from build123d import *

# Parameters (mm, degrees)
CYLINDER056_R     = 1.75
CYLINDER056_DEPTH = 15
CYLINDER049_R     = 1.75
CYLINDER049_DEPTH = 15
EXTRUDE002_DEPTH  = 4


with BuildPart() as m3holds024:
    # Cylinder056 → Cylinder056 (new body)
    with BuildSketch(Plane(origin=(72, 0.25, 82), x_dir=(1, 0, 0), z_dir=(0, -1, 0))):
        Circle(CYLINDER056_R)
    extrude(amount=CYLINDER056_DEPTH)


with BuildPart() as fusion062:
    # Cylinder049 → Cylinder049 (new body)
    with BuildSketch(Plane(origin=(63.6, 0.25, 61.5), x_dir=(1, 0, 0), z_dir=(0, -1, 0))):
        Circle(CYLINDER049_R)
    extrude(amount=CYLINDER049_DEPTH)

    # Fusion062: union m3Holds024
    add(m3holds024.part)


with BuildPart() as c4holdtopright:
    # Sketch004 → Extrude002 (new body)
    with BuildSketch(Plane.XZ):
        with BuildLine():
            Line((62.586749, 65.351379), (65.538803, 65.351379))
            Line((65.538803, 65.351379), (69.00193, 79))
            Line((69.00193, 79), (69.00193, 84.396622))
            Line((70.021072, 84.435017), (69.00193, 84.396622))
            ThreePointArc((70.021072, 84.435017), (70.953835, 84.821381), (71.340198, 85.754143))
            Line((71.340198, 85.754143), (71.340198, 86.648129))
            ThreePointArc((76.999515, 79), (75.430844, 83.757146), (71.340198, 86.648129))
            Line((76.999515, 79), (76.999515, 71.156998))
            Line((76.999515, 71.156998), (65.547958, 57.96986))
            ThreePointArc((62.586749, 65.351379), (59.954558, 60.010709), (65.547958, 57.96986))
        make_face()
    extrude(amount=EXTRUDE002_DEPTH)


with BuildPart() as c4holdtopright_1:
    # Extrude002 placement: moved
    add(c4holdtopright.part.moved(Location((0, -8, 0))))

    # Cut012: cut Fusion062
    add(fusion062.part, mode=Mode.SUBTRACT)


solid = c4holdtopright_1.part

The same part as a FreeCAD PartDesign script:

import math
import FreeCAD as App
import Part
import Sketcher
Q = App.Units.Quantity

doc = App.newDocument("Part")
body = doc.addObject("PartDesign::Body", "Body")

sketch1 = doc.addObject("Sketcher::SketchObject", "Sketch")
body.addObject(sketch1)
sketch1.AttachmentSupport = (doc.XZ_Plane, [""])
sketch1.MapMode = "FlatFace"
sketch1.AttachmentOffset = App.Placement(App.Vector(0, 0, -0.25), App.Rotation())
sketch1.addGeometry(Part.Circle(App.Vector(72, 82, 0), App.Vector(0, 0, 1), 1.75), False)
sketch1.addConstraint(Sketcher.Constraint("Diameter", 0, Q("3.5 mm")))
sketch1.addConstraint(Sketcher.Constraint("DistanceX", -1, 1, 0, 3, Q("72 mm")))
sketch1.addConstraint(Sketcher.Constraint("DistanceY", -1, 1, 0, 3, Q("82 mm")))
pad1 = doc.addObject("PartDesign::Pad", "Pad")
body.addObject(pad1)
pad1.Profile = sketch1
pad1.Length = 15
body2 = doc.addObject("PartDesign::Body", "Body001")
body2.AllowCompound = True

sketch2 = doc.addObject("Sketcher::SketchObject", "Sketch001")
body2.addObject(sketch2)
sketch2.AttachmentSupport = (doc.getObject("XZ_Plane001"), [""])
sketch2.MapMode = "FlatFace"
sketch2.AttachmentOffset = App.Placement(App.Vector(0, 0, -0.25), App.Rotation())
sketch2.addGeometry(Part.Circle(App.Vector(63.6, 61.5, 0), App.Vector(0, 0, 1), 1.75), False)
sketch2.addConstraint(Sketcher.Constraint("Diameter", 0, Q("3.5 mm")))
sketch2.addConstraint(Sketcher.Constraint("DistanceX", -1, 1, 0, 3, Q("63.6 mm")))
sketch2.addConstraint(Sketcher.Constraint("DistanceY", -1, 1, 0, 3, Q("61.5 mm")))
pad2 = doc.addObject("PartDesign::Pad", "Pad001")
body2.addObject(pad2)
pad2.Profile = sketch2
pad2.Length = 15
doc.recompute()

boolean = doc.addObject("PartDesign::Boolean", "Boolean")
body2.addObject(boolean)
boolean.Type = "Fuse"
boolean.addObjects([body])
body3 = doc.addObject("PartDesign::Body", "Body002")

sketch3 = doc.addObject("Sketcher::SketchObject", "Sketch002")
body3.addObject(sketch3)
sketch3.AttachmentSupport = (doc.getObject("XZ_Plane002"), [""])
sketch3.MapMode = "FlatFace"
sketch3.addGeometry(Part.LineSegment(App.Vector(65.538803, 65.351379, 0), App.Vector(62.586749, 65.351379, 0)), False)
sketch3.addGeometry(Part.ArcOfCircle(Part.Circle(App.Vector(63.666971, 61.5, 0), App.Vector(0, 0, 1), 4), math.radians(105.667573), math.radians(298.050311)), False)
sketch3.addGeometry(Part.LineSegment(App.Vector(65.547958, 57.96986, 0), App.Vector(76.999515, 71.156998, 0)), False)
sketch3.addGeometry(Part.LineSegment(App.Vector(76.999515, 71.156998, 0), App.Vector(76.999515, 79, 0)), False)
sketch3.addGeometry(Part.ArcOfCircle(Part.Circle(App.Vector(69.001931, 79.000001, 0), App.Vector(0, 0, 1), 7.997584), math.radians(-0.000007), math.radians(73)), False)
sketch3.addGeometry(Part.LineSegment(App.Vector(71.340198, 86.648129, 0), App.Vector(71.340198, 85.754143, 0)), False)
sketch3.addGeometry(Part.ArcOfCircle(Part.Circle(App.Vector(70.02107, 85.754145, 0), App.Vector(0, 0, 1), 1.319128), math.radians(-89.999935), math.radians(-0.000065)), False)
sketch3.addGeometry(Part.LineSegment(App.Vector(70.021072, 84.435017, 0), App.Vector(69.00193, 84.396622, 0)), False)
sketch3.addGeometry(Part.LineSegment(App.Vector(69.00193, 84.396622, 0), App.Vector(69.00193, 79, 0)), False)
sketch3.addGeometry(Part.LineSegment(App.Vector(69.00193, 79, 0), App.Vector(65.538803, 65.351379, 0)), False)
sketch3.addConstraint(Sketcher.Constraint("Coincident", 0, 2, 1, 1))
sketch3.addConstraint(Sketcher.Constraint("Coincident", 1, 2, 2, 1))
sketch3.addConstraint(Sketcher.Constraint("Coincident", 2, 2, 3, 1))
sketch3.addConstraint(Sketcher.Constraint("Tangent", 3, 2, 4, 1))
sketch3.addConstraint(Sketcher.Constraint("Coincident", 4, 2, 5, 1))
sketch3.addConstraint(Sketcher.Constraint("Tangent", 5, 2, 6, 2))
sketch3.addConstraint(Sketcher.Constraint("Coincident", 6, 1, 7, 1))
sketch3.addConstraint(Sketcher.Constraint("Coincident", 7, 2, 8, 1))
sketch3.addConstraint(Sketcher.Constraint("Coincident", 8, 2, 9, 1))
sketch3.addConstraint(Sketcher.Constraint("Coincident", 9, 2, 0, 1))
sketch3.addConstraint(Sketcher.Constraint("Horizontal", 0))
sketch3.addConstraint(Sketcher.Constraint("Vertical", 3))
sketch3.addConstraint(Sketcher.Constraint("Vertical", 5))
sketch3.addConstraint(Sketcher.Constraint("Vertical", 8))
sketch3.addConstraint(Sketcher.Constraint("Coincident", 8, 2, 4, 3))
sketch3.addConstraint(Sketcher.Constraint("Radius", 1, Q("4 mm")))
sketch3.addConstraint(Sketcher.Constraint("DistanceY", -1, 1, 4, 3, Q("79.000001 mm")))
sketch3.addConstraint(Sketcher.Constraint("DistanceY", -1, 1, 1, 3, Q("61.5 mm")))
sketch3.addConstraint(Sketcher.Constraint("DistanceY", 3, 1, 3, 2, Q("7.843002 mm")))
sketch3.addConstraint(Sketcher.Constraint("Radius", 4, Q("7.997584 mm")))
sketch3.addConstraint(Sketcher.Constraint("Radius", 6, Q("1.319128 mm")))
sketch3.addConstraint(Sketcher.Constraint("DistanceY", 8, 2, 8, 1, Q("5.396622 mm")))
sketch3.addConstraint(Sketcher.Constraint("DistanceX", -1, 1, 4, 2, Q("71.340198 mm")))
sketch3.addConstraint(Sketcher.Constraint("DistanceX", 1, 3, 6, 3, Q("6.354099 mm")))
sketch3.addConstraint(Sketcher.Constraint("Distance", 2, Q("17.465359 mm")))
sketch3.addConstraint(Sketcher.Constraint("DistanceX", 0, 2, 0, 1, Q("2.952054 mm")))
sketch3.addConstraint(Sketcher.Constraint("DistanceY", 5, 2, 5, 1, Q("0.893986 mm")))
sketch3.addConstraint(Sketcher.Constraint("DistanceX", -1, 1, 4, 3, Q("69.001931 mm")))
sketch3.addConstraint(Sketcher.Constraint("DistanceX", -1, 1, 0, 2, Q("62.586749 mm")))
sketch3.addConstraint(Sketcher.Constraint("DistanceX", 4, 3, 6, 1, Q("1.019141 mm")))
pad3 = doc.addObject("PartDesign::Pad", "Pad002")
body3.addObject(pad3)
pad3.Profile = sketch3
pad3.Length = 4
body4 = doc.addObject("PartDesign::Body", "Body003")
doc.recompute()

body3.Placement = App.Placement(App.Vector(0, -8, 0), App.Rotation(App.Vector(0, 0, 1), 0))
boolean2 = doc.addObject("PartDesign::Boolean", "Boolean001")
body4.addObject(boolean2)
boolean2.Type = "Fuse"
boolean2.addObjects([body3])
doc.recompute()

boolean3 = doc.addObject("PartDesign::Boolean", "Boolean002")
body4.addObject(boolean3)
boolean3.Type = "Cut"
boolean3.addObjects([body2])

doc.recompute()
